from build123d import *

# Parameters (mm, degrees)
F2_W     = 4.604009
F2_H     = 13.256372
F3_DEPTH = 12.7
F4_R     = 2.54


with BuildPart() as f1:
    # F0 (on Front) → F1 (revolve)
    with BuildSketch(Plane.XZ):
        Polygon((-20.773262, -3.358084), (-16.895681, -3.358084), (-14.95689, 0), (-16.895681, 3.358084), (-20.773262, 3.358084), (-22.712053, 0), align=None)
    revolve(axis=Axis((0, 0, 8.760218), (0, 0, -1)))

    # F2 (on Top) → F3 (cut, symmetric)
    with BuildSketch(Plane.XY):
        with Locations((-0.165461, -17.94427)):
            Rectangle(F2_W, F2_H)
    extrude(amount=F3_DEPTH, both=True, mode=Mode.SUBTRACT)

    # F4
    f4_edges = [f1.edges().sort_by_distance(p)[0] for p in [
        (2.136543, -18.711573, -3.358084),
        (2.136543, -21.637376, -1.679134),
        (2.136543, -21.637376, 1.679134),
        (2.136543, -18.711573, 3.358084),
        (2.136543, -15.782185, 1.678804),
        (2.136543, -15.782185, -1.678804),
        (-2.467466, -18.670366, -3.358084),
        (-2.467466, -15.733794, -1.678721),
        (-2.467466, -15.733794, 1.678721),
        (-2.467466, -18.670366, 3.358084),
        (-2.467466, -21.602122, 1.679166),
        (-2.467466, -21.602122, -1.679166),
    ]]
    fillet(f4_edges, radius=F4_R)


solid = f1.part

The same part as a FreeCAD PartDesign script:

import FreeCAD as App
import Part
import Sketcher
from FreeCAD import Vector
Q = App.Units.Quantity


def edges_at(feature, points):
    """Names of the edges that pass closest to the given points."""
    edges = feature.Shape.Edges
    near = lambda p: min(range(len(edges)), key=lambda i: edges[i].distToShape(Part.Vertex(*p))[0])
    return sorted({f"Edge{near(p) + 1}" for p in points})

doc = App.newDocument("Part")
params = doc.addObject("Spreadsheet::Sheet", "Params")
for row, (alias, value) in enumerate([
    ("revolution_angle", "360 deg"),
    ("pocket1_length", "1 in"),
    ("fillet_radius", "0.1 in"),
], start=1):
    params.set(f"A{row}", alias)
    params.set(f"B{row}", "=" + value)
    params.setAlias(f"B{row}", alias)

body = doc.addObject("PartDesign::Body", "Body")

sketch1 = body.newObject("Sketcher::SketchObject", "Sketch")
sketch1.AttachmentSupport = (doc.getObject("XZ_Plane"), [""])
sketch1.MapMode = "FlatFace"
sketch1.addGeometry([
    Part.LineSegment(Vector(-20.773262, -3.358084, 0), Vector(-16.895681, -3.358084, 0)),
    Part.LineSegment(Vector(-16.895681, -3.358084, 0), Vector(-14.95689, 0, 0)),
    Part.LineSegment(Vector(-14.95689, 0, 0), Vector(-16.895681, 3.358084, 0)),
    Part.LineSegment(Vector(-16.895681, 3.358084, 0), Vector(-20.773262, 3.358084, 0)),
    Part.LineSegment(Vector(-20.773262, 3.358084, 0), Vector(-22.712053, 0, 0)),
    Part.LineSegment(Vector(-22.712053, 0, 0), Vector(-20.773262, -3.358084, 0)),
], False)
sketch1.addConstraint([
    Sketcher.Constraint("Coincident", 0, 2, 1, 1),
    Sketcher.Constraint("Coincident", 1, 2, 2, 1),
    Sketcher.Constraint("Coincident", 2, 2, 3, 1),
    Sketcher.Constraint("Coincident", 3, 2, 4, 1),
    Sketcher.Constraint("Coincident", 4, 2, 5, 1),
    Sketcher.Constraint("Coincident", 5, 2, 0, 1),
    Sketcher.Constraint("Horizontal", 0),
    Sketcher.Constraint("Horizontal", 3),
    Sketcher.Constraint("Symmetric", 0, 2, 2, 2, -1),
    Sketcher.Constraint("PointOnObject", 1, 2, -1),
    Sketcher.Constraint("PointOnObject", 4, 2, -1),
    Sketcher.Constraint("Parallel", 1, 4),
    Sketcher.Constraint("Parallel", 2, 5),
    Sketcher.Constraint("Angle", 1, Q("59.999996 deg")),
    Sketcher.Constraint("DistanceX", 0, 1, 0, 2, Q("3.877581 mm")),
    Sketcher.Constraint("Distance", 1, Q("3.877582 mm")),
    Sketcher.Constraint("DistanceX", 0, 2, -1, 1, Q("16.895681 mm")),
])
revolution = body.newObject("PartDesign::Revolution", "Revolution")
revolution.Profile = sketch1
revolution.ReferenceAxis = (sketch1, ["V_Axis"])
revolution.setExpression("Angle", "Params.revolution_angle")

sketch2 = body.newObject("Sketcher::SketchObject", "Sketch001")
sketch2.AttachmentSupport = (doc.getObject("XY_Plane"), [""])
sketch2.MapMode = "FlatFace"
sketch2.addGeometry([
    Part.LineSegment(Vector(-2.467465, -11.316084, 0), Vector(-2.467465, -24.572456, 0)),
    Part.LineSegment(Vector(-2.467465, -24.572456, 0), Vector(2.136544, -24.572456, 0)),
    Part.LineSegment(Vector(2.136544, -24.572456, 0), Vector(2.136544, -11.316084, 0)),
    Part.LineSegment(Vector(2.136544, -11.316084, 0), Vector(-2.467465, -11.316084, 0)),
], False)
sketch2.addConstraint([
    Sketcher.Constraint("Coincident", 0, 2, 1, 1),
    Sketcher.Constraint("Coincident", 1, 2, 2, 1),
    Sketcher.Constraint("Coincident", 2, 2, 3, 1),
    Sketcher.Constraint("Coincident", 3, 2, 0, 1),
    Sketcher.Constraint("Vertical", 0),
    Sketcher.Constraint("Horizontal", 1),
    Sketcher.Constraint("Vertical", 2),
    Sketcher.Constraint("Horizontal", 3),
    Sketcher.Constraint("DistanceX", 1, 1, 1, 2, Q("4.604009 mm")),
    Sketcher.Constraint("DistanceY", 0, 2, 0, 1, Q("13.256372 mm")),
    Sketcher.Constraint("DistanceX", 0, 2, -1, 1, Q("2.467465 mm")),
    Sketcher.Constraint("DistanceY", 0, 2, -1, 1, Q("24.572456 mm")),
])
pocket1 = body.newObject("PartDesign::Pocket", "Pocket")
pocket1.Profile = sketch2
pocket1.setExpression("Length", "Params.pocket1_length")
pocket1.Midplane = True
doc.recompute()

fillet = body.newObject("PartDesign::Fillet", "Fillet")
fillet.Base = (pocket1, edges_at(pocket1, [
    (2.137, -18.712, -3.358),
    (2.137, -21.637, -1.679),
    (2.137, -21.637, 1.679),
    (2.137, -18.712, 3.358),
    (2.137, -15.782, 1.679),
    (2.137, -15.782, -1.679),
    (-2.467, -18.67, -3.358),
    (-2.467, -15.734, -1.679),
    (-2.467, -15.734, 1.679),
    (-2.467, -18.67, 3.358),
    (-2.467, -21.602, 1.679),
    (-2.467, -21.602, -1.679),
]))
fillet.setExpression("Radius", "Params.fillet_radius")

doc.recompute()
